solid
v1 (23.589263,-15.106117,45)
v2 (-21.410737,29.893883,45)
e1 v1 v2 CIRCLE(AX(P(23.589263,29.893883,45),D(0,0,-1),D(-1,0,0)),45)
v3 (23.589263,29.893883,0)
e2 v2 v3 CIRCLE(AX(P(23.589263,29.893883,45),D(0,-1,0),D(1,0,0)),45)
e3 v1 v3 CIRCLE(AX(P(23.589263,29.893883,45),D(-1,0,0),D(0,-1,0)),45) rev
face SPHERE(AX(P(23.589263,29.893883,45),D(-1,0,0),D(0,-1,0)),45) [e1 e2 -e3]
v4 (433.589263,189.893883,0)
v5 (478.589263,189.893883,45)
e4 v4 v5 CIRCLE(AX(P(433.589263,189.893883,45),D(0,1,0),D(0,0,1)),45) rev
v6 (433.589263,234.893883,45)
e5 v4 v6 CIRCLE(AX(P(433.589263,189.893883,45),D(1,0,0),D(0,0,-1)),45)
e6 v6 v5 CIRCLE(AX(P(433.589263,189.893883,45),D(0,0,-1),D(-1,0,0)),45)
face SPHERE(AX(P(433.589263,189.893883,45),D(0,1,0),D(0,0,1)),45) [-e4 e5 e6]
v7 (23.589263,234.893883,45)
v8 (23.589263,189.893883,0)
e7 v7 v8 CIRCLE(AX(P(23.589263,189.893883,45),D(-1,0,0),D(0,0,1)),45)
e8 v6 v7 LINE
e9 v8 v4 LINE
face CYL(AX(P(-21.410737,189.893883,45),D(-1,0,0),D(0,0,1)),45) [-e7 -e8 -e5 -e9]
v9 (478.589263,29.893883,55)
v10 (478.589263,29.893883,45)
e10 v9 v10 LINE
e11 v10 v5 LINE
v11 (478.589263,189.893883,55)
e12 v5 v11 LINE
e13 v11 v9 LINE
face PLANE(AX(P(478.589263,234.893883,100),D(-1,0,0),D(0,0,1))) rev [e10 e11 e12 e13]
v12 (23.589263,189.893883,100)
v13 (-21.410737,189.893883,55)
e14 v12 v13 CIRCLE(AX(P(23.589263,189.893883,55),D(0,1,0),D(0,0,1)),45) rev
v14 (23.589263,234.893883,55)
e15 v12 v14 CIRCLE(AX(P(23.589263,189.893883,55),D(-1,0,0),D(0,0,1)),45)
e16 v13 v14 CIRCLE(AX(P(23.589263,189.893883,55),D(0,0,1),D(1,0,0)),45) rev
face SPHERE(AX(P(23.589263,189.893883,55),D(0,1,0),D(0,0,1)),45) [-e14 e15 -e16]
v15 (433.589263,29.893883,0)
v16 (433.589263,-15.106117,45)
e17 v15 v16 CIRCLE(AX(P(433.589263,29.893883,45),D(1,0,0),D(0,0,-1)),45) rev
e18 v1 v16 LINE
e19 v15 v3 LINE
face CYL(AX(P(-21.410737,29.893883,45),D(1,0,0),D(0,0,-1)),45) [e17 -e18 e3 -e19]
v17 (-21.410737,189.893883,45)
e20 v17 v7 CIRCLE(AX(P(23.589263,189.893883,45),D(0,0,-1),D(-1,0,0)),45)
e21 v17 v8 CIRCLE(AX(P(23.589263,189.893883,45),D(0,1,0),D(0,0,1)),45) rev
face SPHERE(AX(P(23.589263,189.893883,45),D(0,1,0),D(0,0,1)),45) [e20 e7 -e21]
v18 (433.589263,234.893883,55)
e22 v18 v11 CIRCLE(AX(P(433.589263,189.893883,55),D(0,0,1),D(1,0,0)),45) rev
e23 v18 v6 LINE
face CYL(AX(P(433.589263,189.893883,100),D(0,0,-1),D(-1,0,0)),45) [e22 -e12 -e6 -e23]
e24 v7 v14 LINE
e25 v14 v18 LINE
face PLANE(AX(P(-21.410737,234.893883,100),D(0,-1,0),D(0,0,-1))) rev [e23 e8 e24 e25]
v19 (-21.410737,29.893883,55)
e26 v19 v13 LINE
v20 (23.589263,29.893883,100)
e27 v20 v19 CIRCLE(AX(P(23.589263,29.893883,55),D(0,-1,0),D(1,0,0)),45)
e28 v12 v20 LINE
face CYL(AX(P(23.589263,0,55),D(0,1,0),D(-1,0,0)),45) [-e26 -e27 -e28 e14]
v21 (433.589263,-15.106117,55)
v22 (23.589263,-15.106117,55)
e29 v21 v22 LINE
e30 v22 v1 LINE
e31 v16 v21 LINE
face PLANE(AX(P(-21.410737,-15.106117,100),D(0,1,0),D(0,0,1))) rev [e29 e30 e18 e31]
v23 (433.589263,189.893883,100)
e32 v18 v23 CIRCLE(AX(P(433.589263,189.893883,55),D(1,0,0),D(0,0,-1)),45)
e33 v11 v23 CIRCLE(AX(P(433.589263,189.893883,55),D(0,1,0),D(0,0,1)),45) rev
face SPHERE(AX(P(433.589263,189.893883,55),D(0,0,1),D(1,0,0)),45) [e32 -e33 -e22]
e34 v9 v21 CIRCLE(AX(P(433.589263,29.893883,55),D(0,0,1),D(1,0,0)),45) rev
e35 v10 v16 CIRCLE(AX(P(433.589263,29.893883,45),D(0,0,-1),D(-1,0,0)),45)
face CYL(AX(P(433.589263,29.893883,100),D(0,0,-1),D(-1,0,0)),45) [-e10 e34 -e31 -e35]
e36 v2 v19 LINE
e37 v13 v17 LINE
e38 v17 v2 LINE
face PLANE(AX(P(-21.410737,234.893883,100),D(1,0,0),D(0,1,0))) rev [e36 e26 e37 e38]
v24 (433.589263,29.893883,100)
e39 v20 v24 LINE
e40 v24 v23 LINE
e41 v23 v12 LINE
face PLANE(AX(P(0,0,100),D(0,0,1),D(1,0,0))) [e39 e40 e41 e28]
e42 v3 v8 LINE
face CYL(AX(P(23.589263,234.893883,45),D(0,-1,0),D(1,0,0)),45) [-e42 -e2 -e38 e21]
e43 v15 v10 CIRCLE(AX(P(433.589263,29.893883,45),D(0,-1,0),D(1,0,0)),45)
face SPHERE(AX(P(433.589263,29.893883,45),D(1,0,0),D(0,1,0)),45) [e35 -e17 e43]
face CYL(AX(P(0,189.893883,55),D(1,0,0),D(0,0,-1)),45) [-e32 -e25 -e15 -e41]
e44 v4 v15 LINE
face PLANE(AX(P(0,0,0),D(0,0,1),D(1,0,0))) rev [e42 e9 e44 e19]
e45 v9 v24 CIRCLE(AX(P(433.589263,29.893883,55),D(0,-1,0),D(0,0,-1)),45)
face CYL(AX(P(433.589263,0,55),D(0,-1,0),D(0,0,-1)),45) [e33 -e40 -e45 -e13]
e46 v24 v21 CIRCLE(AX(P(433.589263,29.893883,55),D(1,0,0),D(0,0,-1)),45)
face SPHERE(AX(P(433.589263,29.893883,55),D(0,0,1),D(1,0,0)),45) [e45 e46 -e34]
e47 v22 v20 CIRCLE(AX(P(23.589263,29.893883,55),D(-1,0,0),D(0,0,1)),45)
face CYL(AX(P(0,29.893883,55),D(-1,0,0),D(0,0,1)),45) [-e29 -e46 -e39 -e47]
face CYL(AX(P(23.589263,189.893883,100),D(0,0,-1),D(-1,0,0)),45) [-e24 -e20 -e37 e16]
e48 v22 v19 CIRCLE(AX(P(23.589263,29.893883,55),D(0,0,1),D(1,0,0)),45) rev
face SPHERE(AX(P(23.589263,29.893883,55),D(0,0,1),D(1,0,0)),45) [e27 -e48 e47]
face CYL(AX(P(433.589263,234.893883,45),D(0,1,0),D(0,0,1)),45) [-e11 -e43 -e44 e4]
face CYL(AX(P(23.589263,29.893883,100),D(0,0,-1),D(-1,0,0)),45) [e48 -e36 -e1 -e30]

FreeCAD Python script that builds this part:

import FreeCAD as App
import Part
import Sketcher
Q = App.Units.Quantity


def add_polygon(sketch, points):
    """Adds a closed chain of lines whose ends are joined by coincident constraints."""
    first, n = sketch.GeometryCount, len(points)
    for a, b in zip(points, points[1:] + points[:1]):
        sketch.addGeometry(Part.LineSegment(App.Vector(*a, 0), App.Vector(*b, 0)), False)
    for i in range(n):
        sketch.addConstraint(Sketcher.Constraint("Coincident", first + i, 2, first + (i + 1) % n, 1))

doc = App.newDocument("Part")
params = doc.addObject("Spreadsheet::Sheet", "Params")
for row, (alias, value) in enumerate([
    ("sketch1_width", "500 mm"),
    ("sketch1_height", "250 mm"),
    ("pad1_length", "100 mm"),
    ("fillet_radius", "45 mm"),
], start=1):
    params.set(f"A{row}", alias)
    params.set(f"B{row}", "=" + value)
    params.setAlias(f"B{row}", alias)

body = doc.addObject("PartDesign::Body", "Body")

# Sketch on XY plane
sketch1 = body.newObject("Sketcher::SketchObject", "Sketch")
sketch1.AttachmentSupport = (doc.getObject("XY_Plane"), [""])
sketch1.MapMode = "FlatFace"
add_polygon(sketch1, [(-21, 235), (-21, -15), (479, -15), (479, 235)])  # lines 0-3
sketch1.addConstraint([
    Sketcher.Constraint("Vertical", 0),
    Sketcher.Constraint("Horizontal", 1),
    Sketcher.Constraint("Vertical", 2),
    Sketcher.Constraint("Horizontal", 3),
    Sketcher.Constraint("DistanceX", 1, 1, 1, 2, Q("500 mm")),
    Sketcher.Constraint("DistanceY", 0, 2, 0, 1, Q("250 mm")),
    Sketcher.Constraint("DistanceX", 0, 2, -1, 1, Q("21.410737 mm")),
    Sketcher.Constraint("DistanceY", 0, 2, -1, 1, Q("15.106117 mm")),
])
sketch1.setExpression("Constraints[8]", "Params.sketch1_width")
sketch1.setExpression("Constraints[9]", "Params.sketch1_height")
pad1 = body.newObject("PartDesign::Pad", "Pad")
pad1.Profile = sketch1
pad1.setExpression("Length", "Params.pad1_length")
doc.recompute()

fillet = body.newObject("PartDesign::Fillet", "Fillet")
fillet.Base = (pad1, ["Edge1"])
fillet.UseAllEdges = True
fillet.setExpression("Radius", "Params.fillet_radius")

doc.recompute()
